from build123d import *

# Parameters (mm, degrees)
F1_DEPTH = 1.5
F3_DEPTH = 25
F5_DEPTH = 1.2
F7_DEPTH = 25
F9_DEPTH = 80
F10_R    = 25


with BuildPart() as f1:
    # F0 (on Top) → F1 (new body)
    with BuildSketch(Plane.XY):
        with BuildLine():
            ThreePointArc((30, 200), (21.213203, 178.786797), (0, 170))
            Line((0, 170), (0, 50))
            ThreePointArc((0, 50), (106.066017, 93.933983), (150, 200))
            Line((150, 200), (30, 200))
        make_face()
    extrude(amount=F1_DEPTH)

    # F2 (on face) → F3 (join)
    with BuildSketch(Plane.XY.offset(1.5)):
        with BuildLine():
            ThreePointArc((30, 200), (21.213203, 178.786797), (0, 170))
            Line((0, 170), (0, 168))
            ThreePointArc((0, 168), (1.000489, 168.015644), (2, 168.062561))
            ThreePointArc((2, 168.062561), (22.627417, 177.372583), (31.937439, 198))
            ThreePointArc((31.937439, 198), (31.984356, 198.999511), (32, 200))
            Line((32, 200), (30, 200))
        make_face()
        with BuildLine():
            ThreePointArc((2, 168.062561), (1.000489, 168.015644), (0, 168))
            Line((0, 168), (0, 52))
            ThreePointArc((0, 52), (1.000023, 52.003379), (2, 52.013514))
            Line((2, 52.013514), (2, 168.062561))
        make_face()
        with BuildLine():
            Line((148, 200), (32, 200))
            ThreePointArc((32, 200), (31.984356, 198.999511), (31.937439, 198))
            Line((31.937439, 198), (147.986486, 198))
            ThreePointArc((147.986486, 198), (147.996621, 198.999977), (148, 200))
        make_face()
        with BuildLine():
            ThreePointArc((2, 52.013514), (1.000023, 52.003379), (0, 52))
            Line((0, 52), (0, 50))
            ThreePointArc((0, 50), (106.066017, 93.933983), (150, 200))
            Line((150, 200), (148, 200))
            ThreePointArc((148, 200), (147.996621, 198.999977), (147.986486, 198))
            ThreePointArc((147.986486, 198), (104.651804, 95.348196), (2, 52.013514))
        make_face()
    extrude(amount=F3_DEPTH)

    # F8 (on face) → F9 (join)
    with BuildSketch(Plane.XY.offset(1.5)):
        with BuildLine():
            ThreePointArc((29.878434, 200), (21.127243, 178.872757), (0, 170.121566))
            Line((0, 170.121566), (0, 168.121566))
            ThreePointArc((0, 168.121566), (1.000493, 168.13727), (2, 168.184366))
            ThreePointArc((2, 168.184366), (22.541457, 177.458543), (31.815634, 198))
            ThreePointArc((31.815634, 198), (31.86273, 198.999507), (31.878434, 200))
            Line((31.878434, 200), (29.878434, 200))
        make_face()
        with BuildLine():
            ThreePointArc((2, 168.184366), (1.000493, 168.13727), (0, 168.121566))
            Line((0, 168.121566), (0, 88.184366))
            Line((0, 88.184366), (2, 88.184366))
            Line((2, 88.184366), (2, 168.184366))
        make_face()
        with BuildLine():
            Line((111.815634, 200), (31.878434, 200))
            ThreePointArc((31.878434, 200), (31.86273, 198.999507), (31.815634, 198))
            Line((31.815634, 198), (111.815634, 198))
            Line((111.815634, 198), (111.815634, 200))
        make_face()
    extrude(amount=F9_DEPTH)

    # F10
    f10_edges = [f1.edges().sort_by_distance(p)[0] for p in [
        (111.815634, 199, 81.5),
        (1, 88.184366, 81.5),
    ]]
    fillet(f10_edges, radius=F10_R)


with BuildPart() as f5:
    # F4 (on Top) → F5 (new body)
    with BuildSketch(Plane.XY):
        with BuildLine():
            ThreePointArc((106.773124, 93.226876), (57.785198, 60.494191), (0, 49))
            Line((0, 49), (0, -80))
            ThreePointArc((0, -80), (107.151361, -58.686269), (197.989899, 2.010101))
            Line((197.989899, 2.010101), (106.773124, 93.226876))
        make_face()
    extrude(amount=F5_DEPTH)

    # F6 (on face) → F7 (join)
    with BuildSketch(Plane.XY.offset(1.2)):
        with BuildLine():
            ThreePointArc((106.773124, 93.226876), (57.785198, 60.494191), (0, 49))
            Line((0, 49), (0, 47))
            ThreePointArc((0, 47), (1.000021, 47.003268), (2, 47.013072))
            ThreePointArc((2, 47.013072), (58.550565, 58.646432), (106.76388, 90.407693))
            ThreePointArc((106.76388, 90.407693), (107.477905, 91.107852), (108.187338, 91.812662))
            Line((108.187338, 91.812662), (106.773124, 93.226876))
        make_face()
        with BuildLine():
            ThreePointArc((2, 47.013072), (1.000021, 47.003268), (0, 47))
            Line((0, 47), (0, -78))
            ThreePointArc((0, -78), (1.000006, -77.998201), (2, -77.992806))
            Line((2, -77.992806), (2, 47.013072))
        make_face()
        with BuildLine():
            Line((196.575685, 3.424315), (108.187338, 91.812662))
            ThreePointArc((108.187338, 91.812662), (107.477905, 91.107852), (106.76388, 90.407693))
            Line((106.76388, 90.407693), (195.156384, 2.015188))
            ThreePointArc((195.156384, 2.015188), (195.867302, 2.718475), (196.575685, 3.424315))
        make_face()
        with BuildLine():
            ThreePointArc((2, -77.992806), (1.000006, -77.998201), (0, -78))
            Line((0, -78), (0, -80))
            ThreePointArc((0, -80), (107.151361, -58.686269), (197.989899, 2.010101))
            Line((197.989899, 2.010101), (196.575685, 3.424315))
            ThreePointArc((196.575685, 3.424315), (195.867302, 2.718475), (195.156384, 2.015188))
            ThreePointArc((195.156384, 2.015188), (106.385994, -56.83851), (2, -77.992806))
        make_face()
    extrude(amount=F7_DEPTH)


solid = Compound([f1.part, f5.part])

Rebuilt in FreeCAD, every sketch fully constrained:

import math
import FreeCAD as App
import Part
import Sketcher

V = App.Vector
Q = App.Units.Quantity


def edges_at(feature, points):
    """Names of the edges that pass closest to the given points."""
    edges = feature.Shape.Edges
    near = lambda p: min(range(len(edges)), key=lambda i: edges[i].distToShape(Part.Vertex(*p))[0])
    return sorted({f"Edge{near(p) + 1}" for p in points})

doc = App.newDocument("Part")
params = doc.addObject("Spreadsheet::Sheet", "Params")
for row, (alias, value) in enumerate([
    ("sketch1_radius", "30.000001 mm"),
    ("sketch1_radius2", "150.000001 mm"),
    ("pad1_length", "1.5 mm"),
    ("sketch2_radius", "30.000001 mm"),
    ("sketch2_radius2", "150.000001 mm"),
    ("sketch2_radius3", "32.000001 mm"),
    ("sketch2_radius4", "147.999999 mm"),
    ("pad2_length", "25 mm"),
    ("sketch3_width", "2 mm"),
    ("sketch3_width2", "80 mm"),
    ("pad3_length", "80 mm"),
    ("fillet_radius", "25 mm"),
    ("sketch4_height", "129 mm"),
    ("pad4_length", "1.2 mm"),
    ("sketch5_height", "129 mm"),
    ("pad5_length", "25 mm"),
], start=1):
    params.set(f"A{row}", alias)
    params.set(f"B{row}", "=" + value)
    params.setAlias(f"B{row}", alias)

body = doc.addObject("PartDesign::Body", "Body")

sketch1 = doc.addObject("Sketcher::SketchObject", "Sketch")
body.addObject(sketch1)
sketch1.AttachmentSupport = (doc.XY_Plane, [""])
sketch1.MapMode = "FlatFace"
sketch1.addGeometry([
    Part.ArcOfCircle(Part.Circle(V(0, 200, 0), V(0, 0, 1), 30), math.radians(-90), math.radians(0)),
    Part.LineSegment(V(0, 170, 0), V(0, 50, 0)),
    Part.ArcOfCircle(Part.Circle(V(0, 200, 0), V(0, 0, 1), 150), math.radians(-90), math.radians(0)),
    Part.LineSegment(V(150, 200, 0), V(30, 200, 0)),
], False)
sketch1.addConstraint([
    Sketcher.Constraint("Coincident", 0, 1, 1, 1),
    Sketcher.Constraint("Coincident", 1, 2, 2, 1),
    Sketcher.Constraint("Coincident", 2, 2, 3, 1),
    Sketcher.Constraint("Coincident", 3, 2, 0, 2),
    Sketcher.Constraint("Vertical", 1),
    Sketcher.Constraint("Horizontal", 3),
    Sketcher.Constraint("Coincident", 2, 3, 0, 3),
    Sketcher.Constraint("PointOnObject", 0, 3, -2),
    Sketcher.Constraint("PointOnObject", 0, 1, -2),
    Sketcher.Constraint("Horizontal", 0, 3, 2, 2),
    Sketcher.Constraint("Radius", 0, Q("30.000001 mm")),
    Sketcher.Constraint("Radius", 2, Q("150.000001 mm")),
    Sketcher.Constraint("DistanceY", -1, 1, 0, 3, Q("200.000001 mm")),
])
sketch1.setExpression("Constraints[10]", "Params.sketch1_radius")
sketch1.setExpression("Constraints[11]", "Params.sketch1_radius2")
pad1 = doc.addObject("PartDesign::Pad", "Pad")
body.addObject(pad1)
pad1.Profile = sketch1
pad1.setExpression("Length", "Params.pad1_length")

sketch2 = doc.addObject("Sketcher::SketchObject", "Sketch001")
body.addObject(sketch2)
sketch2.AttachmentSupport = (doc.XY_Plane, [""])
sketch2.MapMode = "FlatFace"
sketch2.AttachmentOffset = App.Placement(V(0, 0, 1.5), App.Rotation())
sketch2.addGeometry([
    Part.ArcOfCircle(Part.Circle(V(0, 200, 0), V(0, 0, 1), 30), math.radians(-90), math.radians(0)),
    Part.LineSegment(V(0, 170, 0), V(0, 50, 0)),
    Part.ArcOfCircle(Part.Circle(V(0, 200, 0), V(0, 0, 1), 150), math.radians(-90), math.radians(0)),
    Part.LineSegment(V(150, 200, 0), V(30, 200, 0)),
    Part.LineSegment(V(2, 52, 0), V(2, 168, 0)),
    Part.ArcOfCircle(Part.Circle(V(0, 200, 0), V(0, 0, 1), 32), math.radians(-86), math.radians(-4)),
    Part.LineSegment(V(32, 198, 0), V(148, 198, 0)),
    Part.ArcOfCircle(Part.Circle(V(0, 200, 0), V(0, 0, 1), 148), math.radians(-89), math.radians(-1)),
], False)
sketch2.addConstraint([
    Sketcher.Constraint("Coincident", 0, 1, 1, 1),
    Sketcher.Constraint("Coincident", 1, 2, 2, 1),
    Sketcher.Constraint("Coincident", 2, 2, 3, 1),
    Sketcher.Constraint("Coincident", 3, 2, 0, 2),
    Sketcher.Constraint("Coincident", 4, 2, 5, 1),
    Sketcher.Constraint("Coincident", 5, 2, 6, 1),
    Sketcher.Constraint("Coincident", 6, 2, 7, 2),
    Sketcher.Constraint("Coincident", 7, 1, 4, 1),
    Sketcher.Constraint("Vertical", 1),
    Sketcher.Constraint("Horizontal", 3),
    Sketcher.Constraint("Vertical", 4),
    Sketcher.Constraint("Horizontal", 6),
    Sketcher.Constraint("Coincident", 2, 3, 0, 3),
    Sketcher.Constraint("Coincident", 5, 3, 0, 3),
    Sketcher.Constraint("Coincident", 7, 3, 0, 3),
    Sketcher.Constraint("PointOnObject", 0, 3, -2),
    Sketcher.Constraint("PointOnObject", 0, 1, -2),
    Sketcher.Constraint("Horizontal", 7, 3, 2, 2),
    Sketcher.Constraint("Equal", 6, 4),
    Sketcher.Constraint("Radius", 0, Q("30.000001 mm")),
    Sketcher.Constraint("Radius", 2, Q("150.000001 mm")),
    Sketcher.Constraint("Radius", 5, Q("32.000001 mm")),
    Sketcher.Constraint("Radius", 7, Q("147.999999 mm")),
    Sketcher.Constraint("DistanceY", -1, 1, 0, 3, Q("200.000001 mm")),
    Sketcher.Constraint("DistanceX", -1, 1, 4, 2, Q("2 mm")),
])
sketch2.setExpression("Constraints[19]", "Params.sketch2_radius")
sketch2.setExpression("Constraints[20]", "Params.sketch2_radius2")
sketch2.setExpression("Constraints[21]", "Params.sketch2_radius3")
sketch2.setExpression("Constraints[22]", "Params.sketch2_radius4")
pad2 = doc.addObject("PartDesign::Pad", "Pad001")
body.addObject(pad2)
pad2.Profile = sketch2
pad2.setExpression("Length", "Params.pad2_length")

sketch3 = doc.addObject("Sketcher::SketchObject", "Sketch002")
body.addObject(sketch3)
sketch3.AttachmentSupport = (doc.XY_Plane, [""])
sketch3.MapMode = "FlatFace"
sketch3.AttachmentOffset = App.Placement(V(0, 0, 1.5), App.Rotation())
sketch3.addGeometry([
    Part.ArcOfCircle(Part.Circle(V(0, 200, 0), V(0, 0, 1), 29.9), math.radians(-90), math.radians(0)),
    Part.LineSegment(V(0, 170.1, 0), V(0, 88.2, 0)),
    Part.LineSegment(V(0, 88.2, 0), V(2, 88.2, 0)),
    Part.LineSegment(V(2, 88.2, 0), V(2, 168.2, 0)),
    Part.ArcOfCircle(Part.Circle(V(0, 200, 0), V(0, 0, 1), 31.9), math.radians(-86), math.radians(-4)),
    Part.LineSegment(V(31.8, 198, 0), V(111.8, 198, 0)),
    Part.LineSegment(V(111.8, 198, 0), V(111.8, 200, 0)),
    Part.LineSegment(V(111.8, 200, 0), V(29.9, 200, 0)),
], False)
sketch3.addConstraint([
    Sketcher.Constraint("Coincident", 0, 1, 1, 1),
    Sketcher.Constraint("Coincident", 1, 2, 2, 1),
    Sketcher.Constraint("Coincident", 2, 2, 3, 1),
    Sketcher.Constraint("Coincident", 3, 2, 4, 1),
    Sketcher.Constraint("Coincident", 4, 2, 5, 1),
    Sketcher.Constraint("Coincident", 5, 2, 6, 1),
    Sketcher.Constraint("Coincident", 6, 2, 7, 1),
    Sketcher.Constraint("Coincident", 7, 2, 0, 2),
    Sketcher.Constraint("Vertical", 1),
    Sketcher.Constraint("Horizontal", 2),
    Sketcher.Constraint("Vertical", 3),
    Sketcher.Constraint("Horizontal", 5),
    Sketcher.Constraint("Vertical", 6),
    Sketcher.Constraint("Horizontal", 7),
    Sketcher.Constraint("Coincident", 4, 3, 0, 3),
    Sketcher.Constraint("PointOnObject", 0, 3, -2),
    Sketcher.Constraint("PointOnObject", 0, 1, -2),
    Sketcher.Constraint("Horizontal", 4, 3, 6, 2),
    Sketcher.Constraint("Equal", 7, 1),
    Sketcher.Constraint("Equal", 5, 3),
    Sketcher.Constraint("DistanceX", 2, 1, 2, 2, Q("2 mm")),
    Sketcher.Constraint("DistanceX", 5, 1, 5, 2, Q("80 mm")),
    Sketcher.Constraint("DistanceY", -1, 1, 0, 3, Q("200.000001 mm")),
    Sketcher.Constraint("DistanceX", 7, 2, 7, 1, Q("81.9372 mm")),
    Sketcher.Constraint("Radius", 0, Q("29.878435 mm")),
])
sketch3.setExpression("Constraints[20]", "Params.sketch3_width")
sketch3.setExpression("Constraints[21]", "Params.sketch3_width2")
pad3 = doc.addObject("PartDesign::Pad", "Pad002")
body.addObject(pad3)
pad3.Profile = sketch3
pad3.setExpression("Length", "Params.pad3_length")
doc.recompute()

fillet = doc.addObject("PartDesign::Fillet", "Fillet")
body.addObject(fillet)
fillet.Base = (pad3, edges_at(pad3, [(111.816, 199, 81.5), (1, 88.184, 81.5)]))
fillet.setExpression("Radius", "Params.fillet_radius")
body2 = doc.addObject("PartDesign::Body", "Body001")

sketch4 = doc.addObject("Sketcher::SketchObject", "Sketch003")
body2.addObject(sketch4)
sketch4.AttachmentSupport = (doc.getObject("XY_Plane001"), [""])
sketch4.MapMode = "FlatFace"
sketch4.addGeometry([
    Part.ArcOfCircle(Part.Circle(V(0, 200, 0), V(0, 0, 1), 151), math.radians(-90), math.radians(-45)),
    Part.LineSegment(V(0, 49, 0), V(0, -80, 0)),
    Part.ArcOfCircle(Part.Circle(V(0, 200, 0), V(0, 0, 1), 280), math.radians(-90), math.radians(-45)),
    Part.LineSegment(V(198, 2, 0), V(107, 93, 0)),
], False)
sketch4.addConstraint([
    Sketcher.Constraint("Coincident", 0, 1, 1, 1),
    Sketcher.Constraint("Coincident", 1, 2, 2, 1),
    Sketcher.Constraint("Coincident", 2, 2, 3, 1),
    Sketcher.Constraint("Coincident", 3, 2, 0, 2),
    Sketcher.Constraint("Vertical", 1),
    Sketcher.Constraint("Coincident", 2, 3, 0, 3),
    Sketcher.Constraint("PointOnObject", 2, 3, -2),
    Sketcher.Constraint("PointOnObject", 0, 1, -2),
    Sketcher.Constraint("DistanceY", 1, 2, 1, 1, Q("129 mm")),
    Sketcher.Constraint("Angle", 3, Q("135 deg")),
    Sketcher.Constraint("DistanceY", -1, 1, 0, 1, Q("49 mm")),
    Sketcher.Constraint("Radius", 0, Q("151.000006 mm")),
    Sketcher.Constraint("DistanceX", -1, 1, 2, 2, Q("197.989899 mm")),
])
sketch4.setExpression("Constraints[8]", "Params.sketch4_height")
pad4 = doc.addObject("PartDesign::Pad", "Pad003")
body2.addObject(pad4)
pad4.Profile = sketch4
pad4.setExpression("Length", "Params.pad4_length")

sketch5 = doc.addObject("Sketcher::SketchObject", "Sketch004")
body2.addObject(sketch5)
sketch5.AttachmentSupport = (doc.getObject("XY_Plane001"), [""])
sketch5.MapMode = "FlatFace"
sketch5.AttachmentOffset = App.Placement(V(0, 0, 1.2), App.Rotation())
sketch5.addGeometry([
    Part.ArcOfCircle(Part.Circle(V(0, 200, 0), V(0, 0, 1), 151), math.radians(-90), math.radians(-45)),
    Part.LineSegment(V(0, 49, 0), V(0, -80, 0)),
    Part.ArcOfCircle(Part.Circle(V(0, 200, 0), V(0, 0, 1), 280), math.radians(-90), math.radians(-45)),
    Part.LineSegment(V(198, 2, 0), V(107, 93, 0)),
    Part.LineSegment(V(2, -78, 0), V(2, 47, 0)),
    Part.ArcOfCircle(Part.Circle(V(0, 200, 0), V(0, 0, 1), 153), math.radians(-89), math.radians(-46)),
    Part.LineSegment(V(107, 90, 0), V(195, 2, 0)),
    Part.ArcOfCircle(Part.Circle(V(0, 200, 0), V(0, 0, 1), 278), math.radians(-90), math.radians(-45)),
], False)
sketch5.addConstraint([
    Sketcher.Constraint("Coincident", 0, 1, 1, 1),
    Sketcher.Constraint("Coincident", 1, 2, 2, 1),
    Sketcher.Constraint("Coincident", 2, 2, 3, 1),
    Sketcher.Constraint("Coincident", 3, 2, 0, 2),
    Sketcher.Constraint("Coincident", 4, 2, 5, 1),
    Sketcher.Constraint("Coincident", 5, 2, 6, 1),
    Sketcher.Constraint("Coincident", 6, 2, 7, 2),
    Sketcher.Constraint("Coincident", 7, 1, 4, 1),
    Sketcher.Constraint("Vertical", 1),
    Sketcher.Constraint("Vertical", 4),
    Sketcher.Constraint("Coincident", 2, 3, 0, 3),
    Sketcher.Constraint("Coincident", 5, 3, 0, 3),
    Sketcher.Constraint("Coincident", 7, 3, 0, 3),
    Sketcher.Constraint("PointOnObject", 2, 3, -2),
    Sketcher.Constraint("PointOnObject", 0, 1, -2),
    Sketcher.Constraint("Parallel", 3, 6),
    Sketcher.Constraint("DistanceY", 1, 2, 1, 1, Q("129 mm")),
    Sketcher.Constraint("Angle", 3, Q("135 deg")),
    Sketcher.Constraint("DistanceY", -1, 1, 0, 1, Q("49 mm")),
    Sketcher.Constraint("DistanceX", -1, 1, 4, 2, Q("2 mm")),
    Sketcher.Constraint("Radius", 0, Q("151.000006 mm")),
    Sketcher.Constraint("Radius", 5, Q("153.000006 mm")),
    Sketcher.Constraint("Radius", 7, Q("278.000004 mm")),
    Sketcher.Constraint("DistanceX", -1, 1, 2, 2, Q("197.989899 mm")),
    Sketcher.Constraint("DistanceY", 7, 1, 5, 2, Q("168.400499 mm")),
])
sketch5.setExpression("Constraints[16]", "Params.sketch5_height")
pad5 = doc.addObject("PartDesign::Pad", "Pad004")
body2.addObject(pad5)
pad5.Profile = sketch5
pad5.setExpression("Length", "Params.pad5_length")

doc.recompute()
